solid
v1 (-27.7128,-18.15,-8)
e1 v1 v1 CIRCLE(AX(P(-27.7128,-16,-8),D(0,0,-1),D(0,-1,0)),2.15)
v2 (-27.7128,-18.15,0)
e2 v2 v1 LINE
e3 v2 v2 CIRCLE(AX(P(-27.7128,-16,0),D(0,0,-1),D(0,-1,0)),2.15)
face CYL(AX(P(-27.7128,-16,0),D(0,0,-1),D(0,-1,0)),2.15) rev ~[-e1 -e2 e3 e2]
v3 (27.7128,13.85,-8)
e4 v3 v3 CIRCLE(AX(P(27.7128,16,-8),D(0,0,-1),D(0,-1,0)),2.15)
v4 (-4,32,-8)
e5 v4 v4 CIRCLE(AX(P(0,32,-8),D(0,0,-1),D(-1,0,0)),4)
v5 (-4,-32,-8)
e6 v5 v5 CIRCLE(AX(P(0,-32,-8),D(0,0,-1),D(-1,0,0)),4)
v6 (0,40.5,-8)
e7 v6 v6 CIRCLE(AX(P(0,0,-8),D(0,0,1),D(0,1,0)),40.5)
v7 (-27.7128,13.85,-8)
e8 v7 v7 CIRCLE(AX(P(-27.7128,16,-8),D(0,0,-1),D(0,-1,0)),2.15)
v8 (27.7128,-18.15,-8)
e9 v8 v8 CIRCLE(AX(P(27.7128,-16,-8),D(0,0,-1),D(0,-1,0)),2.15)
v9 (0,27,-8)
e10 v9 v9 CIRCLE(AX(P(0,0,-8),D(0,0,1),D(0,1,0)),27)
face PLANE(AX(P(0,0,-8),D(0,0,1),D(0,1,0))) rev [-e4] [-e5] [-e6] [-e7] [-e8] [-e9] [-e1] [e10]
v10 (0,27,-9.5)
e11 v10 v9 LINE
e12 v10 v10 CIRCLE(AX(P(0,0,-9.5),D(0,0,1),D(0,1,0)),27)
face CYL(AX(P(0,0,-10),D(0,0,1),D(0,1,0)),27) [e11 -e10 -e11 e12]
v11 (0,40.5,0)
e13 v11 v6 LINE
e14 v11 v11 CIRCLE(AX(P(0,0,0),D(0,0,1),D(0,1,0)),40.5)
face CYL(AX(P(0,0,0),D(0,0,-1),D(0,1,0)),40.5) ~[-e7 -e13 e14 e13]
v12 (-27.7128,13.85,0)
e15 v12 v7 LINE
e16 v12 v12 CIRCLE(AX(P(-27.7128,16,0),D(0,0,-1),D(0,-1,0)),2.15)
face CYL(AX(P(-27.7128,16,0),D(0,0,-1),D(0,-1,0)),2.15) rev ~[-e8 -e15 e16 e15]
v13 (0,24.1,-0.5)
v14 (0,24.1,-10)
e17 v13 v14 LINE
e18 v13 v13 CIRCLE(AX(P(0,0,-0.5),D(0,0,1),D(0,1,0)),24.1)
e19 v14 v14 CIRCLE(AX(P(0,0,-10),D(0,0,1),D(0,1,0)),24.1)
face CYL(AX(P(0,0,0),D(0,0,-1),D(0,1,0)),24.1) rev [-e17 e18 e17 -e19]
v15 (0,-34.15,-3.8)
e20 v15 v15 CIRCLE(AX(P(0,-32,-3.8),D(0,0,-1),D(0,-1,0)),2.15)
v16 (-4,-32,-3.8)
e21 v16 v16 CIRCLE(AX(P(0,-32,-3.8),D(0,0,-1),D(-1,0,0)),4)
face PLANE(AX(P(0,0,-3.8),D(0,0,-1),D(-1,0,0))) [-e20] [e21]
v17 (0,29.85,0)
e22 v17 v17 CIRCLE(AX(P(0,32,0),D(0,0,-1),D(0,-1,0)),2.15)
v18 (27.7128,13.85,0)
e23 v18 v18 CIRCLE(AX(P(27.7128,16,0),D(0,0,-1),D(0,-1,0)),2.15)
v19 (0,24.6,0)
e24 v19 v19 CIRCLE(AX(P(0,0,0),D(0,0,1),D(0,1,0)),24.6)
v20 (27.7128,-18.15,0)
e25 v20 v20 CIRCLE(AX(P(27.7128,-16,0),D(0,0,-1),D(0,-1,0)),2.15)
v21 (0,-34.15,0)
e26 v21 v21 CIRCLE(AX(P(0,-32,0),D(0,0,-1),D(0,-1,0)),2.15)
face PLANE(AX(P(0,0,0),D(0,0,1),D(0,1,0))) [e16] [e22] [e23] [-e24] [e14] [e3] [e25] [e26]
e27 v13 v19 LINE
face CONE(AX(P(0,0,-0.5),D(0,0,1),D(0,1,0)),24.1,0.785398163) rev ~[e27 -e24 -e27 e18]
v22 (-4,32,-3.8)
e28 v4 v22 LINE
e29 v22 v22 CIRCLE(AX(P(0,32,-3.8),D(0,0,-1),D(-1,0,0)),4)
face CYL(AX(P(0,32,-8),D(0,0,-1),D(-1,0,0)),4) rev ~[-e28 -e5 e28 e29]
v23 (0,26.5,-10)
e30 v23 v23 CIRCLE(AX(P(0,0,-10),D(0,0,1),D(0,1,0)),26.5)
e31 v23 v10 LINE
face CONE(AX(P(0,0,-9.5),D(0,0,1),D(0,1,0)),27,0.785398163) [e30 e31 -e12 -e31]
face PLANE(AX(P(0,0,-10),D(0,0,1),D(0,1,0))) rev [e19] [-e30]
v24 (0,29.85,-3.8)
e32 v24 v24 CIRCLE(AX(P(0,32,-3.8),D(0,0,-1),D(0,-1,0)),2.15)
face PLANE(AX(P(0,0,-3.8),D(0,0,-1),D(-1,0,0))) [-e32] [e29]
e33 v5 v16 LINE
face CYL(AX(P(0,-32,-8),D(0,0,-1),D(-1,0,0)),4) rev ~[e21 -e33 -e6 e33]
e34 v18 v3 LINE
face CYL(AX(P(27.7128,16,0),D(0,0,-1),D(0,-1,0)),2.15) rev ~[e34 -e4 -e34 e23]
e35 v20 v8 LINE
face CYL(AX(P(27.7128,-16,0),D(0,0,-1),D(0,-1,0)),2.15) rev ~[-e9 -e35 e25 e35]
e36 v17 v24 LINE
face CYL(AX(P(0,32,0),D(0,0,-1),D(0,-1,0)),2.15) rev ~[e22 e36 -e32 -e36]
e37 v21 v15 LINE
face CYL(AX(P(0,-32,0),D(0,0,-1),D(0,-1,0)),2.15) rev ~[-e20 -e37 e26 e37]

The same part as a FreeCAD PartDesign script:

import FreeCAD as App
import Part
import Sketcher
Q = App.Units.Quantity


def edges_at(feature, points):
    """Names of the edges that pass closest to the given points."""
    edges = feature.Shape.Edges
    near = lambda p: min(range(len(edges)), key=lambda i: edges[i].distToShape(Part.Vertex(*p))[0])
    return sorted({f"Edge{near(p) + 1}" for p in points})

doc = App.newDocument("Part")
body = doc.addObject("PartDesign::Body", "Body")

# Sketch on YZ plane
sketch1 = body.newObject("Sketcher::SketchObject", "Sketch")
sketch1.AttachmentSupport = (doc.getObject("YZ_Plane"), [""])
sketch1.MapMode = "FlatFace"
sketch1.addGeometry([
    Part.LineSegment(App.Vector(40.5, 0, 0), App.Vector(24.1, 0, 0)),  # 0
    Part.LineSegment(App.Vector(24.1, 0, 0), App.Vector(24.1, -10, 0)),  # 1
    Part.LineSegment(App.Vector(24.1, -10, 0), App.Vector(27, -10, 0)),  # 2
    Part.LineSegment(App.Vector(27, -10, 0), App.Vector(27, -8, 0)),  # 3
    Part.LineSegment(App.Vector(27, -8, 0), App.Vector(40.5, -8, 0)),  # 4
    Part.LineSegment(App.Vector(40.5, -8, 0), App.Vector(40.5, 0, 0)),  # 5
], False)
sketch1.addConstraint([
    Sketcher.Constraint("Coincident", 0, 2, 1, 1),
    Sketcher.Constraint("Coincident", 1, 2, 2, 1),
    Sketcher.Constraint("Coincident", 2, 2, 3, 1),
    Sketcher.Constraint("Coincident", 3, 2, 4, 1),
    Sketcher.Constraint("Coincident", 4, 2, 5, 1),
    Sketcher.Constraint("Coincident", 5, 2, 0, 1),
    Sketcher.Constraint("Horizontal", 0),
    Sketcher.Constraint("Vertical", 1),
    Sketcher.Constraint("Horizontal", 2),
    Sketcher.Constraint("Vertical", 3),
    Sketcher.Constraint("Horizontal", 4),
    Sketcher.Constraint("Vertical", 5),
    Sketcher.Constraint("PointOnObject", 0, 2, -1),
    Sketcher.Constraint("DistanceY", 3, 1, 3, 2, Q("2 mm")),
    Sketcher.Constraint("DistanceY", 5, 1, 5, 2, Q("8 mm")),
    Sketcher.Constraint("DistanceX", -1, 1, 2, 2, Q("27 mm")),
    Sketcher.Constraint("DistanceX", -1, 1, 0, 2, Q("24.1 mm")),
    Sketcher.Constraint("DistanceX", -1, 1, 4, 2, Q("40.5 mm")),
])
revolution = body.newObject("PartDesign::Revolution", "Revolution")
revolution.Profile = sketch1
revolution.ReferenceAxis = (sketch1, ["V_Axis"])
revolution.Angle = 360

# Sketch on XY plane
sketch2 = body.newObject("Sketcher::SketchObject", "Sketch001")
sketch2.AttachmentSupport = (doc.getObject("XY_Plane"), [""])
sketch2.MapMode = "FlatFace"
sketch2.addGeometry([
    Part.Circle(App.Vector(0, 32, 0), App.Vector(0, 0, 1), 2.15),  # 0
    Part.Circle(App.Vector(-27.7128, 16, 0), App.Vector(0, 0, 1), 2.15),  # 1
    Part.Circle(App.Vector(-27.7128, -16, 0), App.Vector(0, 0, 1), 2.15),  # 2
    Part.Circle(App.Vector(0, -32, 0), App.Vector(0, 0, 1), 2.15),  # 3
    Part.Circle(App.Vector(27.7128, -16, 0), App.Vector(0, 0, 1), 2.15),  # 4
    Part.Circle(App.Vector(27.7128, 16, 0), App.Vector(0, 0, 1), 2.15),  # 5
], False)
sketch2.addConstraint([
    Sketcher.Constraint("Equal", 0, 1),
    Sketcher.Constraint("Equal", 1, 2),
    Sketcher.Constraint("Equal", 2, 3),
    Sketcher.Constraint("Equal", 3, 4),
    Sketcher.Constraint("Equal", 4, 5),
    Sketcher.Constraint("Symmetric", 0, 3, 3, 3, -1, 1),
    Sketcher.Constraint("Symmetric", 1, 3, 4, 3, -1, 1),
    Sketcher.Constraint("Symmetric", 2, 3, 5, 3, -1, 1),
    Sketcher.Constraint("Symmetric", 2, 3, 4, 3, -2),
    Sketcher.Constraint("PointOnObject", 0, 3, -2),
    Sketcher.Constraint("Diameter", 0, Q("4.3 mm")),
    Sketcher.Constraint("DistanceY", -1, 1, 0, 3, Q("32 mm")),
    Sketcher.Constraint("DistanceY", -1, 1, 1, 3, Q("16 mm")),
    Sketcher.Constraint("DistanceX", 1, 3, -1, 1, Q("27.7128 mm")),
])
doc.recompute()
hole = body.newObject("PartDesign::Hole", "Hole")
hole.Profile = sketch2
hole.ThreadType = "None"
hole.Diameter = 4.3
hole.DepthType = "ThroughAll"
doc.recompute()

chamfer = body.newObject("PartDesign::Chamfer", "Chamfer")
chamfer.Base = (hole, edges_at(hole, [(0, -27, -10)]))
chamfer.Size = 0.5
doc.recompute()

chamfer2 = body.newObject("PartDesign::Chamfer", "Chamfer001")
chamfer2.Base = (chamfer, edges_at(chamfer, [(0, -24.1, 0)]))
chamfer2.Size = 0.5

# Sketch on XY plane
sketch3 = body.newObject("Sketcher::SketchObject", "Sketch002")
sketch3.AttachmentSupport = (doc.getObject("XY_Plane"), [""])
sketch3.MapMode = "FlatFace"
sketch3.AttachmentOffset = App.Placement(App.Vector(0, 0, -8), App.Rotation())
sketch3.addGeometry([
    Part.Circle(App.Vector(0, -32, 0), App.Vector(0, 0, 1), 4),
    Part.Circle(App.Vector(0, 32, 0), App.Vector(0, 0, 1), 4),
], False)
sketch3.addConstraint([
    Sketcher.Constraint("Equal", 0, 1),
    Sketcher.Constraint("Symmetric", 0, 3, 1, 3, -1, 1),
    Sketcher.Constraint("PointOnObject", 0, 3, -2),
    Sketcher.Constraint("Diameter", 0, Q("8 mm")),
    Sketcher.Constraint("DistanceY", 0, 3, -1, 1, Q("32 mm")),
])
pocket1 = body.newObject("PartDesign::Pocket", "Pocket")
pocket1.Profile = sketch3
pocket1.Length = 4.2
pocket1.Reversed = True

doc.recompute()
